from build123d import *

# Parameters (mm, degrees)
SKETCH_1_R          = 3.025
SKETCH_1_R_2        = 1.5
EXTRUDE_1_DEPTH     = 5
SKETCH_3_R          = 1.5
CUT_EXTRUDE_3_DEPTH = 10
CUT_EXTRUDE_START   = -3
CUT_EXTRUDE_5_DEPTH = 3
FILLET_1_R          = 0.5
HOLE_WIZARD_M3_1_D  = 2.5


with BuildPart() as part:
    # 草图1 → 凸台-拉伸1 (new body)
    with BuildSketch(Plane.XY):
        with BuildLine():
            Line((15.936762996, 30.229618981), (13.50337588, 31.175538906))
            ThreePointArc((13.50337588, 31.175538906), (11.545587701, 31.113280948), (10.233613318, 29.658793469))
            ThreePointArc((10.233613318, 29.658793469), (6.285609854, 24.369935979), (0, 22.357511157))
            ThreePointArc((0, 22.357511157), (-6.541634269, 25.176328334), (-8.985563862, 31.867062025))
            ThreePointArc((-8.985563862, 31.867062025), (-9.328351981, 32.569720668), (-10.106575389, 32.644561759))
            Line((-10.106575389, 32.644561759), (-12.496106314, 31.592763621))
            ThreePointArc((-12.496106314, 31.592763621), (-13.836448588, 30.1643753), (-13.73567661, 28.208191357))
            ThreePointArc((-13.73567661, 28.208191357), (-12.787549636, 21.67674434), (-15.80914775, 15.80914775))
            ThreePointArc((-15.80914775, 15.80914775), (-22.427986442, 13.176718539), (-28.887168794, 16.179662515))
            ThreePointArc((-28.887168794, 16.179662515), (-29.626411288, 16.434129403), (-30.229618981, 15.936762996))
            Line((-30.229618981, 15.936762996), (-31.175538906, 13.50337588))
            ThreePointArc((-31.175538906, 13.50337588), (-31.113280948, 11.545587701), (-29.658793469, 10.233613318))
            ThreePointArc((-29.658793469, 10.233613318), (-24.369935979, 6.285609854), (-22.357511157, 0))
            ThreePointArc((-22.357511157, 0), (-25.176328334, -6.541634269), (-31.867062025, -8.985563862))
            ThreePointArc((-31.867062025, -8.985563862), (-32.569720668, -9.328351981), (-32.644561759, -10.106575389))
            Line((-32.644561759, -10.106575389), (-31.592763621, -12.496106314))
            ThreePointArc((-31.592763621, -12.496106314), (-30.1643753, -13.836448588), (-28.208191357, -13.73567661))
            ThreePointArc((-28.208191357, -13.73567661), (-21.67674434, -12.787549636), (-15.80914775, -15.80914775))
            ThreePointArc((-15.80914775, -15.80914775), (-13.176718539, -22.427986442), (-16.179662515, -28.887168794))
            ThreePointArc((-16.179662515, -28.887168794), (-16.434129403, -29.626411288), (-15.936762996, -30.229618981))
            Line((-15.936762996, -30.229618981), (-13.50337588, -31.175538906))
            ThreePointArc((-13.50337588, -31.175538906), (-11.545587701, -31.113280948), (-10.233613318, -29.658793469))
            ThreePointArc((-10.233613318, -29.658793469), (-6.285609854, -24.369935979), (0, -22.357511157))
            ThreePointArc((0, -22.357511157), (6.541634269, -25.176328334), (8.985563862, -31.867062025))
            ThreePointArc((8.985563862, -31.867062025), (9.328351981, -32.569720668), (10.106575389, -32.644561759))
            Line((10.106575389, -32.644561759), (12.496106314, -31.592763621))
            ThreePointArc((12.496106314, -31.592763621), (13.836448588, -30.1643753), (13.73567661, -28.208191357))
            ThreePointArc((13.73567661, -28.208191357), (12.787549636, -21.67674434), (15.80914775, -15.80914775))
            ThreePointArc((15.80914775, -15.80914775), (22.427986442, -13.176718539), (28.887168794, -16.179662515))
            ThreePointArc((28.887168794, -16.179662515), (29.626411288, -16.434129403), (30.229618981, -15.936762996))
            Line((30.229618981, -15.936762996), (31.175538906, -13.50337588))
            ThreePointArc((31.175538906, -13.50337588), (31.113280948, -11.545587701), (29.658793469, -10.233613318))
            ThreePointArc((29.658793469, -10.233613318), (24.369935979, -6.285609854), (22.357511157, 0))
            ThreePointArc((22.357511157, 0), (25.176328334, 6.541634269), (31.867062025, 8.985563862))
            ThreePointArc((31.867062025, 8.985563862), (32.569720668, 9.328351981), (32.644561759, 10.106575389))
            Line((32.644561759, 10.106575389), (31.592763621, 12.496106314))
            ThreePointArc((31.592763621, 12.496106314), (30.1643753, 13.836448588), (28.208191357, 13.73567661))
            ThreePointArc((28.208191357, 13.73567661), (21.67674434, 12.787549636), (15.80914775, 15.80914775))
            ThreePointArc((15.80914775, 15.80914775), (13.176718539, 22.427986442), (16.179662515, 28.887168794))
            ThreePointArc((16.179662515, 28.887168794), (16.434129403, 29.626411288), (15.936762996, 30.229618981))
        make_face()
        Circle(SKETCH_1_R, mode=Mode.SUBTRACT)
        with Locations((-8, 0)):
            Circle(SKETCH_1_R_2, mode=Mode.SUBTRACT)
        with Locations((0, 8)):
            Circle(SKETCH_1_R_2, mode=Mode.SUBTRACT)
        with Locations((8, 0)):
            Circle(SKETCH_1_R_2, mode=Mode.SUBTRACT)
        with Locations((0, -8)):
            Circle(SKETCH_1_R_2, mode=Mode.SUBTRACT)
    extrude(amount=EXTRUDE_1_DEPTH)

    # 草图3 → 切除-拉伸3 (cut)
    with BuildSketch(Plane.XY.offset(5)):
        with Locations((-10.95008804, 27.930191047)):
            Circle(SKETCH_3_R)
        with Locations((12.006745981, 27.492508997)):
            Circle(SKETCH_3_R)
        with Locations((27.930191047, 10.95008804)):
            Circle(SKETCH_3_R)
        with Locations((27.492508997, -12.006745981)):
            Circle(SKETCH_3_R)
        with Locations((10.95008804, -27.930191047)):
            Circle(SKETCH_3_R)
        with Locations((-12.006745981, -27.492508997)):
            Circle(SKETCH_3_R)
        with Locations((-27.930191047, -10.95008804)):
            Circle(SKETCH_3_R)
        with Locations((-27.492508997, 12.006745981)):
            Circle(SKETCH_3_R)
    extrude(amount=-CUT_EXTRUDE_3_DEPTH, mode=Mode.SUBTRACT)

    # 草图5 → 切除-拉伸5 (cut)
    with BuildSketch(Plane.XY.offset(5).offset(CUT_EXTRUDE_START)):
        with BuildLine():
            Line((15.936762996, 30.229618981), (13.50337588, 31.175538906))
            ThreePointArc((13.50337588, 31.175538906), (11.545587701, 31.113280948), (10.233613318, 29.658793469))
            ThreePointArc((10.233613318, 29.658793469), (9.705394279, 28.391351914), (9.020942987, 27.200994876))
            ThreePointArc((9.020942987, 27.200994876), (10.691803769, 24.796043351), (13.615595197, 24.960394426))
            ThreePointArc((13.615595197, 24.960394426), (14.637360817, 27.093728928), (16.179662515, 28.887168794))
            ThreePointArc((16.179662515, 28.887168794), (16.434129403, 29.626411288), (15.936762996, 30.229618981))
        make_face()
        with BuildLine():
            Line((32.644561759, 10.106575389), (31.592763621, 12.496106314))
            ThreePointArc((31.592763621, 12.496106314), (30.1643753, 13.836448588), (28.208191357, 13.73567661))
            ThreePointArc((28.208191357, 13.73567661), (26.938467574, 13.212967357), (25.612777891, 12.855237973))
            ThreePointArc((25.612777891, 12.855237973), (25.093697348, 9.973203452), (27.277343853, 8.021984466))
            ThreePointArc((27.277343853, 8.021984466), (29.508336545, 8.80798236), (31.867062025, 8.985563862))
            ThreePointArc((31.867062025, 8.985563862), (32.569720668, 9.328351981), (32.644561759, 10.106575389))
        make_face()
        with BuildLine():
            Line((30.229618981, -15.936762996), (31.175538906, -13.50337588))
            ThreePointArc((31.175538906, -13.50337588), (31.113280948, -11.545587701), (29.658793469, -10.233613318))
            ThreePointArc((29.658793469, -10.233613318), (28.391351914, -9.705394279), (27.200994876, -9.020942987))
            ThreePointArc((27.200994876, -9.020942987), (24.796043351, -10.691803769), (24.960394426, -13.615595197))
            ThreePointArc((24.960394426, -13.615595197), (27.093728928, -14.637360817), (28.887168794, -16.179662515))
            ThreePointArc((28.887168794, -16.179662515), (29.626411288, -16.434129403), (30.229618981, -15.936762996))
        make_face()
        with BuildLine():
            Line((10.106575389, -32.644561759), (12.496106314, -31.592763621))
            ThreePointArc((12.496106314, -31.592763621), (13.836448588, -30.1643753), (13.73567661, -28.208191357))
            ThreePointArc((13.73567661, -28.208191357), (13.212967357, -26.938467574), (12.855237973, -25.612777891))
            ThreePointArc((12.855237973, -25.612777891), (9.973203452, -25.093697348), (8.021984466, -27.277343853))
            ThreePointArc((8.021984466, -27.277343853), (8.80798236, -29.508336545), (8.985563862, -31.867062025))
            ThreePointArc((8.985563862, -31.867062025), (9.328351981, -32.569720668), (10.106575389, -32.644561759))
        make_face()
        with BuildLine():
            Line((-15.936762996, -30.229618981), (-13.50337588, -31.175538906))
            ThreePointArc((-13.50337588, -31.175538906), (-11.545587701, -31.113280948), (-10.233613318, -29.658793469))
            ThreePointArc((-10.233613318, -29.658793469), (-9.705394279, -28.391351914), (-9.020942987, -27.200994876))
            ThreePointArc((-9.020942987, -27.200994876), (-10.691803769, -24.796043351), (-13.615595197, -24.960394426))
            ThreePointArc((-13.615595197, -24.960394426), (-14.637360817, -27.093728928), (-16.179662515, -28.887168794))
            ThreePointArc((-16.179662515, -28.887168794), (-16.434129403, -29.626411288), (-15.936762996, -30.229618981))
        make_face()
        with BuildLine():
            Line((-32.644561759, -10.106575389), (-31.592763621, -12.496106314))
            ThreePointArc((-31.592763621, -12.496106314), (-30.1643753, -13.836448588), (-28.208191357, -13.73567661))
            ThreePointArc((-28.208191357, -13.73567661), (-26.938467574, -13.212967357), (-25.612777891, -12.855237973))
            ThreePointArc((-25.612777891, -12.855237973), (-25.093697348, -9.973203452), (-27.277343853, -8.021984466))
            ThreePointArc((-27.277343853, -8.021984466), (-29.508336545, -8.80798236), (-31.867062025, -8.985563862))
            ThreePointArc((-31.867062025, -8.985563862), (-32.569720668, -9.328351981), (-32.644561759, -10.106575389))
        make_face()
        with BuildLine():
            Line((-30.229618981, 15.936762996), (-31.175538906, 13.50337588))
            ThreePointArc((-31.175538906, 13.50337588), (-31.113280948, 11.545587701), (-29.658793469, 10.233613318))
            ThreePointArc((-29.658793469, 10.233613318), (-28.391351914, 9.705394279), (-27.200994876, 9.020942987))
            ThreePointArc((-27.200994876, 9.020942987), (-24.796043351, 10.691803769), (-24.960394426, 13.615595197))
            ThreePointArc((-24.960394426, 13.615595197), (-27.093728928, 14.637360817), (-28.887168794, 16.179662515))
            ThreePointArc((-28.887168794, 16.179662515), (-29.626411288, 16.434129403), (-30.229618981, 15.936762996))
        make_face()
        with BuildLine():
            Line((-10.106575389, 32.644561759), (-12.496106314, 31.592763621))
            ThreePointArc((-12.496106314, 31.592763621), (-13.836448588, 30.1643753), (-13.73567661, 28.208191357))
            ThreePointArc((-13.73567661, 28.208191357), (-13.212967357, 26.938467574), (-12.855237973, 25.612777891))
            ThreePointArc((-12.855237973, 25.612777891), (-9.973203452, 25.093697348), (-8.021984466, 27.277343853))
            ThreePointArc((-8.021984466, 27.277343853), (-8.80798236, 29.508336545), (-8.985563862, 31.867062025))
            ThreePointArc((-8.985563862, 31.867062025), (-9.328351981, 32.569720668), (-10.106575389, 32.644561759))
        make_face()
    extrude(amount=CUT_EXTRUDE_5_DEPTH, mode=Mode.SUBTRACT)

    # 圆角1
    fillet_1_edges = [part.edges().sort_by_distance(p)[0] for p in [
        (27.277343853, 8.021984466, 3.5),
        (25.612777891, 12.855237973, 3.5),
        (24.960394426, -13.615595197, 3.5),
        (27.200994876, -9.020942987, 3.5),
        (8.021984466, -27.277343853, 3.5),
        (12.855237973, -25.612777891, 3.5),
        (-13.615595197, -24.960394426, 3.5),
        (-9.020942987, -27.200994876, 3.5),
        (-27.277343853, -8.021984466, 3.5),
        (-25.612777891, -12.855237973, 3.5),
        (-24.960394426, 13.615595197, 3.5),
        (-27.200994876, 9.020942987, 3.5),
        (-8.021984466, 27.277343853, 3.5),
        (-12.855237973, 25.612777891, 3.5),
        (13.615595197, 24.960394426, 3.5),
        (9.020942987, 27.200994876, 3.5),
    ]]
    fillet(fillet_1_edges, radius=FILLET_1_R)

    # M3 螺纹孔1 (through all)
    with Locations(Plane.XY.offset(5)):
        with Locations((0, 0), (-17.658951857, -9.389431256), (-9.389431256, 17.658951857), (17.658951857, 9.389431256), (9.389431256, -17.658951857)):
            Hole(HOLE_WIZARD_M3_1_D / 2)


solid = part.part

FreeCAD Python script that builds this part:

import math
import FreeCAD as App
import Part
import Sketcher

V = App.Vector


def edges_at(feature, points):
    """Names of the edges that pass closest to the given points."""
    edges = feature.Shape.Edges
    near = lambda p: min(range(len(edges)), key=lambda i: edges[i].distToShape(Part.Vertex(*p))[0])
    return sorted({f"Edge{near(p) + 1}" for p in points})

doc = App.newDocument("Part")
body = doc.addObject("PartDesign::Body", "Body")

# Sketch on XY plane
sketch1 = doc.addObject("Sketcher::SketchObject", "Sketch")
body.addObject(sketch1)
sketch1.AttachmentSupport = (doc.XY_Plane, [""])
sketch1.MapMode = "FlatFace"
sketch1.addGeometry(Part.LineSegment(V(15.936763, 30.229619, 0), V(13.503376, 31.175539, 0)), False)
sketch1.addGeometry(Part.ArcOfCircle(Part.Circle(V(12.597591, 28.845399, 0), V(0, 0, 1), 2.5), math.radians(68.757621), math.radians(161.012741)), False)
sketch1.addGeometry(Part.ArcOfCircle(Part.Circle(V(0, 33.179964, 0), V(0, 0, 1), 10.822453), math.radians(-90), math.radians(-18.987259)), False)
sketch1.addGeometry(Part.ArcOfCircle(Part.Circle(V(0, 31.357511, 0), V(0, 0, 1), 9), math.radians(176.754363), math.radians(270)), False)
sketch1.addGeometry(Part.ArcOfCircle(Part.Circle(V(-9.784281, 31.912355, 0), V(0, 0, 1), 0.8), math.radians(-3.245637), math.radians(113.757621)), False)
sketch1.addGeometry(Part.LineSegment(V(-10.106575, 32.644562, 0), V(-12.496106, 31.592764, 0)), False)
sketch1.addGeometry(Part.ArcOfCircle(Part.Circle(V(-11.488935, 29.304619, 0), V(0, 0, 1), 2.5), math.radians(113.75762), math.radians(206.012741)), False)
sketch1.addGeometry(Part.ArcOfCircle(Part.Circle(V(-23.461777, 23.461777, 0), V(0, 0, 1), 10.822453), math.radians(-45), math.radians(26.012741)), False)
sketch1.addGeometry(Part.ArcOfCircle(Part.Circle(V(-22.173109, 22.173109, 0), V(0, 0, 1), 9), math.radians(-138.245637), math.radians(-45)), False)
sketch1.addGeometry(Part.ArcOfCircle(Part.Circle(V(-29.483974, 15.646912, 0), V(0, 0, 1), 0.8), math.radians(41.754363), math.radians(158.757621)), False)
sketch1.addGeometry(Part.LineSegment(V(-30.229619, 15.936763, 0), V(-31.175539, 13.503376, 0)), False)
sketch1.addGeometry(Part.ArcOfCircle(Part.Circle(V(-28.845399, 12.597591, 0), V(0, 0, 1), 2.5), math.radians(158.757621), math.radians(251.012741)), False)
sketch1.addGeometry(Part.ArcOfCircle(Part.Circle(V(-33.179964, 0, 0), V(0, 0, 1), 10.822453), math.radians(0), math.radians(71.012741)), False)
sketch1.addGeometry(Part.ArcOfCircle(Part.Circle(V(-31.357511, 0, 0), V(0, 0, 1), 9), math.radians(-93.245637), math.radians(0)), False)
sketch1.addGeometry(Part.ArcOfCircle(Part.Circle(V(-31.912355, -9.784281, 0), V(0, 0, 1), 0.8), math.radians(86.754363), math.radians(203.757621)), False)
sketch1.addGeometry(Part.LineSegment(V(-32.644562, -10.106575, 0), V(-31.592764, -12.496106, 0)), False)
sketch1.addGeometry(Part.ArcOfCircle(Part.Circle(V(-29.304619, -11.488935, 0), V(0, 0, 1), 2.5), math.radians(-156.24238), math.radians(-63.987259)), False)
sketch1.addGeometry(Part.ArcOfCircle(Part.Circle(V(-23.461777, -23.461777, 0), V(0, 0, 1), 10.822453), math.radians(45), math.radians(116.012741)), False)
sketch1.addGeometry(Part.ArcOfCircle(Part.Circle(V(-22.173109, -22.173109, 0), V(0, 0, 1), 9), math.radians(-48.245637), math.radians(45)), False)
sketch1.addGeometry(Part.ArcOfCircle(Part.Circle(V(-15.646912, -29.483974, 0), V(0, 0, 1), 0.8), math.radians(131.754363), math.radians(248.757621)), False)
sketch1.addGeometry(Part.LineSegment(V(-15.936763, -30.229619, 0), V(-13.503376, -31.175539, 0)), False)
sketch1.addGeometry(Part.ArcOfCircle(Part.Circle(V(-12.597591, -28.845399, 0), V(0, 0, 1), 2.5), math.radians(-111.242379), math.radians(-18.987259)), False)
sketch1.addGeometry(Part.ArcOfCircle(Part.Circle(V(0, -33.179964, 0), V(0, 0, 1), 10.822453), math.radians(90), math.radians(161.012741)), False)
sketch1.addGeometry(Part.ArcOfCircle(Part.Circle(V(0, -31.357511, 0), V(0, 0, 1), 9), math.radians(-3.245637), math.radians(90)), False)
sketch1.addGeometry(Part.ArcOfCircle(Part.Circle(V(9.784281, -31.912355, 0), V(0, 0, 1), 0.8), math.radians(176.754363), math.radians(293.757621)), False)
sketch1.addGeometry(Part.LineSegment(V(10.106575, -32.644562, 0), V(12.496106, -31.592764, 0)), False)
sketch1.addGeometry(Part.ArcOfCircle(Part.Circle(V(11.488935, -29.304619, 0), V(0, 0, 1), 2.5), math.radians(-66.24238), math.radians(26.012741)), False)
sketch1.addGeometry(Part.ArcOfCircle(Part.Circle(V(23.461777, -23.461777, 0), V(0, 0, 1), 10.822453), math.radians(135), math.radians(206.012741)), False)
sketch1.addGeometry(Part.ArcOfCircle(Part.Circle(V(22.173109, -22.173109, 0), V(0, 0, 1), 9), math.radians(41.754363), math.radians(135)), False)
sketch1.addGeometry(Part.ArcOfCircle(Part.Circle(V(29.483974, -15.646912, 0), V(0, 0, 1), 0.8), math.radians(-138.245637), math.radians(-21.242379)), False)
sketch1.addGeometry(Part.LineSegment(V(30.229619, -15.936763, 0), V(31.175539, -13.503376, 0)), False)
sketch1.addGeometry(Part.ArcOfCircle(Part.Circle(V(28.845399, -12.597591, 0), V(0, 0, 1), 2.5), math.radians(-21.242379), math.radians(71.012741)), False)
sketch1.addGeometry(Part.ArcOfCircle(Part.Circle(V(33.179964, 0, 0), V(0, 0, 1), 10.822453), math.radians(180), math.radians(251.012741)), False)
sketch1.addGeometry(Part.ArcOfCircle(Part.Circle(V(31.357511, 0, 0), V(0, 0, 1), 9), math.radians(86.754363), math.radians(180)), False)
sketch1.addGeometry(Part.ArcOfCircle(Part.Circle(V(31.912355, 9.784281, 0), V(0, 0, 1), 0.8), math.radians(-93.245637), math.radians(23.757621)), False)
sketch1.addGeometry(Part.LineSegment(V(32.644562, 10.106575, 0), V(31.592764, 12.496106, 0)), False)
sketch1.addGeometry(Part.ArcOfCircle(Part.Circle(V(29.304619, 11.488935, 0), V(0, 0, 1), 2.5), math.radians(23.75762), math.radians(116.012741)), False)
sketch1.addGeometry(Part.ArcOfCircle(Part.Circle(V(23.461777, 23.461777, 0), V(0, 0, 1), 10.822453), math.radians(-135), math.radians(-63.987259)), False)
sketch1.addGeometry(Part.ArcOfCircle(Part.Circle(V(22.173109, 22.173109, 0), V(0, 0, 1), 9), math.radians(131.754363), math.radians(225)), False)
sketch1.addGeometry(Part.ArcOfCircle(Part.Circle(V(15.646912, 29.483974, 0), V(0, 0, 1), 0.8), math.radians(-48.245637), math.radians(68.757621)), False)
sketch1.addGeometry(Part.Circle(V(0, -8, 0), V(0, 0, 1), 1.5), False)
sketch1.addGeometry(Part.Circle(V(-8, 0, 0), V(0, 0, 1), 1.5), False)
sketch1.addGeometry(Part.Circle(V(0, 0, 0), V(0, 0, 1), 3.025), False)
sketch1.addGeometry(Part.Circle(V(8, 0, 0), V(0, 0, 1), 1.5), False)
sketch1.addGeometry(Part.Circle(V(0, 8, 0), V(0, 0, 1), 1.5), False)
sketch1.addConstraint(Sketcher.Constraint("Coincident", 0, 2, 1, 1))
sketch1.addConstraint(Sketcher.Constraint("Coincident", 1, 2, 2, 2))
sketch1.addConstraint(Sketcher.Constraint("Coincident", 2, 1, 3, 2))
sketch1.addConstraint(Sketcher.Constraint("Coincident", 3, 1, 4, 1))
sketch1.addConstraint(Sketcher.Constraint("Coincident", 4, 2, 5, 1))
sketch1.addConstraint(Sketcher.Constraint("Coincident", 5, 2, 6, 1))
sketch1.addConstraint(Sketcher.Constraint("Coincident", 6, 2, 7, 2))
sketch1.addConstraint(Sketcher.Constraint("Coincident", 7, 1, 8, 2))
sketch1.addConstraint(Sketcher.Constraint("Coincident", 8, 1, 9, 1))
sketch1.addConstraint(Sketcher.Constraint("Coincident", 9, 2, 10, 1))
sketch1.addConstraint(Sketcher.Constraint("Coincident", 10, 2, 11, 1))
sketch1.addConstraint(Sketcher.Constraint("Coincident", 11, 2, 12, 2))
sketch1.addConstraint(Sketcher.Constraint("Coincident", 12, 1, 13, 2))
sketch1.addConstraint(Sketcher.Constraint("Coincident", 13, 1, 14, 1))
sketch1.addConstraint(Sketcher.Constraint("Coincident", 14, 2, 15, 1))
sketch1.addConstraint(Sketcher.Constraint("Coincident", 15, 2, 16, 1))
sketch1.addConstraint(Sketcher.Constraint("Coincident", 16, 2, 17, 2))
sketch1.addConstraint(Sketcher.Constraint("Coincident", 17, 1, 18, 2))
sketch1.addConstraint(Sketcher.Constraint("Coincident", 18, 1, 19, 1))
sketch1.addConstraint(Sketcher.Constraint("Coincident", 19, 2, 20, 1))
sketch1.addConstraint(Sketcher.Constraint("Coincident", 20, 2, 21, 1))
sketch1.addConstraint(Sketcher.Constraint("Coincident", 21, 2, 22, 2))
sketch1.addConstraint(Sketcher.Constraint("Coincident", 22, 1, 23, 2))
sketch1.addConstraint(Sketcher.Constraint("Coincident", 23, 1, 24, 1))
sketch1.addConstraint(Sketcher.Constraint("Coincident", 24, 2, 25, 1))
sketch1.addConstraint(Sketcher.Constraint("Coincident", 25, 2, 26, 1))
sketch1.addConstraint(Sketcher.Constraint("Coincident", 26, 2, 27, 2))
sketch1.addConstraint(Sketcher.Constraint("Coincident", 27, 1, 28, 2))
sketch1.addConstraint(Sketcher.Constraint("Coincident", 28, 1, 29, 1))
sketch1.addConstraint(Sketcher.Constraint("Coincident", 29, 2, 30, 1))
sketch1.addConstraint(Sketcher.Constraint("Coincident", 30, 2, 31, 1))
sketch1.addConstraint(Sketcher.Constraint("Coincident", 31, 2, 32, 2))
sketch1.addConstraint(Sketcher.Constraint("Coincident", 32, 1, 33, 2))
sketch1.addConstraint(Sketcher.Constraint("Coincident", 33, 1, 34, 1))
sketch1.addConstraint(Sketcher.Constraint("Coincident", 34, 2, 35, 1))
sketch1.addConstraint(Sketcher.Constraint("Coincident", 35, 2, 36, 1))
sketch1.addConstraint(Sketcher.Constraint("Coincident", 36, 2, 37, 2))
sketch1.addConstraint(Sketcher.Constraint("Coincident", 37, 1, 38, 2))
sketch1.addConstraint(Sketcher.Constraint("Coincident", 38, 1, 39, 1))
sketch1.addConstraint(Sketcher.Constraint("Coincident", 39, 2, 0, 1))
sketch1.addConstraint(Sketcher.Constraint("Coincident", 42, 3, -1, 1))
sketch1.addConstraint(Sketcher.Constraint("PointOnObject", 2, 3, -2))
sketch1.addConstraint(Sketcher.Constraint("PointOnObject", 3, 3, -2))
sketch1.addConstraint(Sketcher.Constraint("PointOnObject", 12, 3, -1))
sketch1.addConstraint(Sketcher.Constraint("PointOnObject", 13, 3, -1))
sketch1.addConstraint(Sketcher.Constraint("PointOnObject", 22, 3, -2))
sketch1.addConstraint(Sketcher.Constraint("PointOnObject", 23, 3, -2))
sketch1.addConstraint(Sketcher.Constraint("PointOnObject", 32, 3, -1))
sketch1.addConstraint(Sketcher.Constraint("PointOnObject", 33, 3, -1))
sketch1.addConstraint(Sketcher.Constraint("PointOnObject", 40, 3, -2))
sketch1.addConstraint(Sketcher.Constraint("PointOnObject", 41, 3, -1))
sketch1.addConstraint(Sketcher.Constraint("PointOnObject", 43, 3, -1))
sketch1.addConstraint(Sketcher.Constraint("PointOnObject", 44, 3, -2))
sketch1.addConstraint(Sketcher.Constraint("PointOnObject", 2, 1, -2))
sketch1.addConstraint(Sketcher.Constraint("PointOnObject", 12, 1, -1))
sketch1.addConstraint(Sketcher.Constraint("PointOnObject", 22, 1, -2))
sketch1.addConstraint(Sketcher.Constraint("PointOnObject", 32, 1, -1))
sketch1.addConstraint(Sketcher.Constraint("Diameter", 40, 3.0))
sketch1.addConstraint(Sketcher.Constraint("Diameter", 41, 3.0))
sketch1.addConstraint(Sketcher.Constraint("Diameter", 43, 3.0))
sketch1.addConstraint(Sketcher.Constraint("Diameter", 44, 3.0))
sketch1.addConstraint(Sketcher.Constraint("Radius", 3, 9.0))
sketch1.addConstraint(Sketcher.Constraint("Radius", 8, 9.0))
sketch1.addConstraint(Sketcher.Constraint("Radius", 13, 9.0))
sketch1.addConstraint(Sketcher.Constraint("Radius", 18, 9.0))
sketch1.addConstraint(Sketcher.Constraint("Radius", 23, 9.0))
sketch1.addConstraint(Sketcher.Constraint("Radius", 28, 9.0))
sketch1.addConstraint(Sketcher.Constraint("Radius", 33, 9.0))
sketch1.addConstraint(Sketcher.Constraint("Radius", 38, 9.0))
sketch1.addConstraint(Sketcher.Constraint("Radius", 1, 2.5))
sketch1.addConstraint(Sketcher.Constraint("Radius", 4, 0.8))
sketch1.addConstraint(Sketcher.Constraint("Radius", 6, 2.5))
sketch1.addConstraint(Sketcher.Constraint("Radius", 9, 0.8))
sketch1.addConstraint(Sketcher.Constraint("Radius", 11, 2.5))
sketch1.addConstraint(Sketcher.Constraint("Radius", 14, 0.8))
sketch1.addConstraint(Sketcher.Constraint("Radius", 16, 2.5))
sketch1.addConstraint(Sketcher.Constraint("Radius", 19, 0.8))
sketch1.addConstraint(Sketcher.Constraint("Radius", 21, 2.5))
sketch1.addConstraint(Sketcher.Constraint("Radius", 24, 0.8))
sketch1.addConstraint(Sketcher.Constraint("Radius", 26, 2.5))
sketch1.addConstraint(Sketcher.Constraint("Radius", 29, 0.8))
sketch1.addConstraint(Sketcher.Constraint("Radius", 31, 2.5))
sketch1.addConstraint(Sketcher.Constraint("Radius", 34, 0.8))
sketch1.addConstraint(Sketcher.Constraint("Radius", 36, 2.5))
sketch1.addConstraint(Sketcher.Constraint("Radius", 39, 0.8))
sketch1.addConstraint(Sketcher.Constraint("Diameter", 42, 6.05))
sketch1.addConstraint(Sketcher.Constraint("DistanceY", 40, 3, -1, 1, 8.0))
sketch1.addConstraint(Sketcher.Constraint("DistanceX", 41, 3, -1, 1, 8.0))
sketch1.addConstraint(Sketcher.Constraint("DistanceX", -1, 1, 43, 3, 8.0))
sketch1.addConstraint(Sketcher.Constraint("DistanceY", -1, 1, 44, 3, 8.0))
sketch1.addConstraint(Sketcher.Constraint("Radius", 2, 10.822453))
sketch1.addConstraint(Sketcher.Constraint("Radius", 7, 10.822453))
sketch1.addConstraint(Sketcher.Constraint("Radius", 12, 10.822453))
sketch1.addConstraint(Sketcher.Constraint("Radius", 17, 10.822453))
sketch1.addConstraint(Sketcher.Constraint("Radius", 22, 10.822453))
sketch1.addConstraint(Sketcher.Constraint("Radius", 27, 10.822453))
sketch1.addConstraint(Sketcher.Constraint("Radius", 32, 10.822453))
sketch1.addConstraint(Sketcher.Constraint("Radius", 37, 10.822453))
sketch1.addConstraint(Sketcher.Constraint("DistanceY", -1, 1, 1, 3, 28.845399))
sketch1.addConstraint(Sketcher.Constraint("DistanceX", 11, 3, -1, 1, 28.845399))
sketch1.addConstraint(Sketcher.Constraint("DistanceY", 21, 3, -1, 1, 28.845399))
sketch1.addConstraint(Sketcher.Constraint("DistanceX", -1, 1, 31, 3, 28.845399))
sketch1.addConstraint(Sketcher.Constraint("DistanceX", -1, 1, 1, 3, 12.597591))
sketch1.addConstraint(Sketcher.Constraint("DistanceX", 4, 3, -1, 1, 9.784281))
sketch1.addConstraint(Sketcher.Constraint("DistanceY", -1, 1, 6, 3, 29.304619))
sketch1.addConstraint(Sketcher.Constraint("DistanceX", 8, 3, -1, 1, 22.173109))
sketch1.addConstraint(Sketcher.Constraint("DistanceY", -1, 1, 8, 3, 22.173109))
sketch1.addConstraint(Sketcher.Constraint("DistanceY", -1, 1, 9, 3, 15.646912))
sketch1.addConstraint(Sketcher.Constraint("DistanceY", -1, 1, 11, 3, 12.597591))
sketch1.addConstraint(Sketcher.Constraint("DistanceY", 14, 3, -1, 1, 9.784281))
sketch1.addConstraint(Sketcher.Constraint("DistanceX", 16, 3, -1, 1, 29.304619))
sketch1.addConstraint(Sketcher.Constraint("DistanceX", 18, 3, -1, 1, 22.173109))
sketch1.addConstraint(Sketcher.Constraint("DistanceY", 18, 3, -1, 1, 22.173109))
sketch1.addConstraint(Sketcher.Constraint("DistanceX", 19, 3, -1, 1, 15.646912))
sketch1.addConstraint(Sketcher.Constraint("DistanceX", 21, 3, -1, 1, 12.597591))
sketch1.addConstraint(Sketcher.Constraint("DistanceX", -1, 1, 24, 3, 9.784281))
sketch1.addConstraint(Sketcher.Constraint("DistanceY", 26, 3, -1, 1, 29.304619))
sketch1.addConstraint(Sketcher.Constraint("DistanceX", -1, 1, 28, 3, 22.173109))
sketch1.addConstraint(Sketcher.Constraint("DistanceY", 28, 3, -1, 1, 22.173109))
sketch1.addConstraint(Sketcher.Constraint("DistanceY", 29, 3, -1, 1, 15.646912))
sketch1.addConstraint(Sketcher.Constraint("DistanceY", 31, 3, -1, 1, 12.597591))
sketch1.addConstraint(Sketcher.Constraint("DistanceY", -1, 1, 34, 3, 9.784281))
sketch1.addConstraint(Sketcher.Constraint("DistanceX", -1, 1, 36, 3, 29.304619))
sketch1.addConstraint(Sketcher.Constraint("DistanceX", -1, 1, 38, 3, 22.173109))
sketch1.addConstraint(Sketcher.Constraint("DistanceY", -1, 1, 38, 3, 22.173109))
sketch1.addConstraint(Sketcher.Constraint("DistanceX", -1, 1, 39, 3, 15.646912))
sketch1.addConstraint(Sketcher.Constraint("DistanceY", -1, 1, 0, 2, 31.175539))
sketch1.addConstraint(Sketcher.Constraint("DistanceY", -1, 1, 4, 2, 32.644562))
sketch1.addConstraint(Sketcher.Constraint("DistanceY", -1, 1, 6, 2, 28.208191))
sketch1.addConstraint(Sketcher.Constraint("DistanceX", 8, 1, -1, 1, 28.887169))
sketch1.addConstraint(Sketcher.Constraint("DistanceX", 9, 2, -1, 1, 30.229619))
sketch1.addConstraint(Sketcher.Constraint("DistanceX", 10, 2, -1, 1, 31.175539))
sketch1.addConstraint(Sketcher.Constraint("DistanceX", 14, 2, -1, 1, 32.644562))
sketch1.addConstraint(Sketcher.Constraint("DistanceX", 16, 2, -1, 1, 28.208191))
sketch1.addConstraint(Sketcher.Constraint("DistanceY", 18, 1, -1, 1, 28.887169))
sketch1.addConstraint(Sketcher.Constraint("DistanceY", 19, 2, -1, 1, 30.229619))
sketch1.addConstraint(Sketcher.Constraint("DistanceY", 20, 2, -1, 1, 31.175539))
sketch1.addConstraint(Sketcher.Constraint("DistanceY", 24, 2, -1, 1, 32.644562))
sketch1.addConstraint(Sketcher.Constraint("DistanceY", 26, 2, -1, 1, 28.208191))
sketch1.addConstraint(Sketcher.Constraint("DistanceX", -1, 1, 28, 1, 28.887169))
sketch1.addConstraint(Sketcher.Constraint("DistanceX", -1, 1, 29, 2, 30.229619))
sketch1.addConstraint(Sketcher.Constraint("DistanceX", -1, 1, 30, 2, 31.175539))
sketch1.addConstraint(Sketcher.Constraint("DistanceX", -1, 1, 34, 2, 32.644562))
sketch1.addConstraint(Sketcher.Constraint("DistanceX", -1, 1, 36, 2, 28.208191))
sketch1.addConstraint(Sketcher.Constraint("DistanceY", -1, 1, 38, 1, 28.887169))
sketch1.addConstraint(Sketcher.Constraint("DistanceY", -1, 1, 39, 2, 30.229619))
sketch1.addConstraint(Sketcher.Constraint("Distance", 5, 2.610773))
sketch1.addConstraint(Sketcher.Constraint("Distance", 15, 2.610773))
sketch1.addConstraint(Sketcher.Constraint("Distance", 25, 2.610773))
sketch1.addConstraint(Sketcher.Constraint("Distance", 35, 2.610773))
sketch1.addConstraint(Sketcher.Constraint("DistanceX", 6, 3, -1, 1, 11.488935))
sketch1.addConstraint(Sketcher.Constraint("DistanceY", 16, 3, -1, 1, 11.488935))
sketch1.addConstraint(Sketcher.Constraint("DistanceX", -1, 1, 26, 3, 11.488935))
sketch1.addConstraint(Sketcher.Constraint("DistanceY", -1, 1, 36, 3, 11.488935))
sketch1.addConstraint(Sketcher.Constraint("DistanceX", -1, 1, 1, 2, 10.233613))
sketch1.addConstraint(Sketcher.Constraint("DistanceX", 3, 1, -1, 1, 8.985564))
sketch1.addConstraint(Sketcher.Constraint("DistanceX", 7, 1, -1, 1, 15.809148))
sketch1.addConstraint(Sketcher.Constraint("DistanceX", 11, 2, -1, 1, 29.658793))
sketch1.addConstraint(Sketcher.Constraint("DistanceX", 13, 1, -1, 1, 31.867062))
sketch1.addConstraint(Sketcher.Constraint("DistanceX", 17, 1, -1, 1, 15.809148))
sketch1.addConstraint(Sketcher.Constraint("DistanceX", 21, 2, -1, 1, 10.233613))
sketch1.addConstraint(Sketcher.Constraint("DistanceX", -1, 1, 23, 1, 8.985564))
sketch1.addConstraint(Sketcher.Constraint("DistanceX", -1, 1, 27, 1, 15.809148))
sketch1.addConstraint(Sketcher.Constraint("DistanceX", -1, 1, 31, 2, 29.658793))
sketch1.addConstraint(Sketcher.Constraint("DistanceX", -1, 1, 33, 1, 31.867062))
sketch1.addConstraint(Sketcher.Constraint("DistanceX", -1, 1, 37, 1, 15.809148))
pad1 = doc.addObject("PartDesign::Pad", "Pad")
body.addObject(pad1)
pad1.Profile = sketch1
pad1.Length = 5

# Sketch on XY plane
sketch2 = doc.addObject("Sketcher::SketchObject", "Sketch001")
body.addObject(sketch2)
sketch2.AttachmentSupport = (doc.XY_Plane, [""])
sketch2.MapMode = "FlatFace"
sketch2.AttachmentOffset = App.Placement(V(0, 0, 5), App.Rotation())
sketch2.addGeometry(Part.Circle(V(-11, 27.9, 0), V(0, 0, 1), 1.5), False)
sketch2.addGeometry(Part.Circle(V(12, 27.5, 0), V(0, 0, 1), 1.5), False)
sketch2.addGeometry(Part.Circle(V(27.9, 11, 0), V(0, 0, 1), 1.5), False)
sketch2.addGeometry(Part.Circle(V(27.5, -12, 0), V(0, 0, 1), 1.5), False)
sketch2.addGeometry(Part.Circle(V(11, -27.9, 0), V(0, 0, 1), 1.5), False)
sketch2.addGeometry(Part.Circle(V(-12, -27.5, 0), V(0, 0, 1), 1.5), False)
sketch2.addGeometry(Part.Circle(V(-27.9, -11, 0), V(0, 0, 1), 1.5), False)
sketch2.addGeometry(Part.Circle(V(-27.5, 12, 0), V(0, 0, 1), 1.5), False)
sketch2.addConstraint(Sketcher.Constraint("Equal", 0, 1))
sketch2.addConstraint(Sketcher.Constraint("Equal", 1, 2))
sketch2.addConstraint(Sketcher.Constraint("Equal", 2, 3))
sketch2.addConstraint(Sketcher.Constraint("Equal", 3, 4))
sketch2.addConstraint(Sketcher.Constraint("Equal", 4, 5))
sketch2.addConstraint(Sketcher.Constraint("Equal", 5, 6))
sketch2.addConstraint(Sketcher.Constraint("Equal", 6, 7))
sketch2.addConstraint(Sketcher.Constraint("Symmetric", 0, 3, 4, 3, -1, 1))
sketch2.addConstraint(Sketcher.Constraint("Symmetric", 1, 3, 5, 3, -1, 1))
sketch2.addConstraint(Sketcher.Constraint("Symmetric", 2, 3, 6, 3, -1, 1))
sketch2.addConstraint(Sketcher.Constraint("Symmetric", 3, 3, 7, 3, -1, 1))
sketch2.addConstraint(Sketcher.Constraint("Diameter", 0, 3.0))
sketch2.addConstraint(Sketcher.Constraint("DistanceY", 4, 3, 1, 3, 55.4227))
sketch2.addConstraint(Sketcher.Constraint("DistanceX", 6, 3, 3, 3, 55.4227))
sketch2.addConstraint(Sketcher.Constraint("DistanceX", 0, 3, -1, 1, 10.950088))
sketch2.addConstraint(Sketcher.Constraint("DistanceY", -1, 1, 0, 3, 27.930191))
sketch2.addConstraint(Sketcher.Constraint("DistanceX", -1, 1, 2, 3, 27.930191))
sketch2.addConstraint(Sketcher.Constraint("DistanceY", -1, 1, 2, 3, 10.950088))
sketch2.addConstraint(Sketcher.Constraint("DistanceX", 5, 3, 1, 3, 24.013492))
sketch2.addConstraint(Sketcher.Constraint("DistanceY", 3, 3, -1, 1, 12.006746))
pocket1 = doc.addObject("PartDesign::Pocket", "Pocket")
body.addObject(pocket1)
pocket1.Profile = sketch2
pocket1.Length = 10

# Sketch on XY plane
sketch3 = doc.addObject("Sketcher::SketchObject", "Sketch002")
body.addObject(sketch3)
sketch3.AttachmentSupport = (doc.XY_Plane, [""])
sketch3.MapMode = "FlatFace"
sketch3.AttachmentOffset = App.Placement(V(0, 0, 2), App.Rotation())
sketch3.addGeometry(Part.LineSegment(V(15.936763, 30.229619, 0), V(13.503376, 31.175539, 0)), False)
sketch3.addGeometry(Part.ArcOfCircle(Part.Circle(V(12.597591, 28.845399, 0), V(0, 0, 1), 2.5), math.radians(68.757621), math.radians(161.012741)), False)
sketch3.addGeometry(Part.ArcOfCircle(Part.Circle(V(0, 33.179964, 0), V(0, 0, 1), 10.822453), math.radians(-33.535923), math.radians(-18.987259)), False)
sketch3.addGeometry(Part.ArcOfCircle(Part.Circle(V(12.006746, 27.492509, 0), V(0, 0, 1), 3), math.radians(-174.423691), math.radians(-57.569032)), False)
sketch3.addGeometry(Part.ArcOfCircle(Part.Circle(V(22.173109, 22.173109, 0), V(0, 0, 1), 9), math.radians(131.754363), math.radians(161.958944)), False)
sketch3.addGeometry(Part.ArcOfCircle(Part.Circle(V(15.646912, 29.483974, 0), V(0, 0, 1), 0.8), math.radians(-48.245637), math.radians(68.757621)), False)
sketch3.addGeometry(Part.LineSegment(V(32.644562, 10.106575, 0), V(31.592764, 12.496106, 0)), False)
sketch3.addGeometry(Part.ArcOfCircle(Part.Circle(V(29.304619, 11.488935, 0), V(0, 0, 1), 2.5), math.radians(23.75762), math.radians(116.012741)), False)
sketch3.addGeometry(Part.ArcOfCircle(Part.Circle(V(23.461777, 23.461778, 0), V(0, 0, 1), 10.822453), math.radians(-78.535923), math.radians(-63.987259)), False)
sketch3.addGeometry(Part.ArcOfCircle(Part.Circle(V(27.930191, 10.950088, 0), V(0, 0, 1), 3), math.radians(140.576309), math.radians(257.430968)), False)
sketch3.addGeometry(Part.ArcOfCircle(Part.Circle(V(31.357511, 0, 0), V(0, 0, 1), 9), math.radians(86.754363), math.radians(116.958944)), False)
sketch3.addGeometry(Part.ArcOfCircle(Part.Circle(V(31.912355, 9.784281, 0), V(0, 0, 1), 0.8), math.radians(-93.245637), math.radians(23.757621)), False)
sketch3.addGeometry(Part.LineSegment(V(30.229619, -15.936763, 0), V(31.175539, -13.503376, 0)), False)
sketch3.addGeometry(Part.ArcOfCircle(Part.Circle(V(28.845399, -12.597591, 0), V(0, 0, 1), 2.5), math.radians(-21.242379), math.radians(71.012741)), False)
sketch3.addGeometry(Part.ArcOfCircle(Part.Circle(V(33.179964, 0, 0), V(0, 0, 1), 10.822453), math.radians(-123.535923), math.radians(-108.987259)), False)
sketch3.addGeometry(Part.ArcOfCircle(Part.Circle(V(27.492509, -12.006746, 0), V(0, 0, 1), 3), math.radians(95.576309), math.radians(212.430968)), False)
sketch3.addGeometry(Part.ArcOfCircle(Part.Circle(V(22.173109, -22.173109, 0), V(0, 0, 1), 9), math.radians(41.754363), math.radians(71.958944)), False)
sketch3.addGeometry(Part.ArcOfCircle(Part.Circle(V(29.483974, -15.646912, 0), V(0, 0, 1), 0.8), math.radians(-138.245637), math.radians(-21.242379)), False)
sketch3.addGeometry(Part.LineSegment(V(10.106575, -32.644562, 0), V(12.496106, -31.592764, 0)), False)
sketch3.addGeometry(Part.ArcOfCircle(Part.Circle(V(11.488935, -29.304619, 0), V(0, 0, 1), 2.5), math.radians(-66.24238), math.radians(26.012741)), False)
sketch3.addGeometry(Part.ArcOfCircle(Part.Circle(V(23.461778, -23.461777, 0), V(0, 0, 1), 10.822453), math.radians(-168.535923), math.radians(-153.987259)), False)
sketch3.addGeometry(Part.ArcOfCircle(Part.Circle(V(10.950088, -27.930191, 0), V(0, 0, 1), 3), math.radians(50.576309), math.radians(167.430968)), False)
sketch3.addGeometry(Part.ArcOfCircle(Part.Circle(V(0, -31.357511, 0), V(0, 0, 1), 9), math.radians(-3.245637), math.radians(26.958944)), False)
sketch3.addGeometry(Part.ArcOfCircle(Part.Circle(V(9.784281, -31.912355, 0), V(0, 0, 1), 0.8), math.radians(176.754363), math.radians(293.757621)), False)
sketch3.addGeometry(Part.LineSegment(V(-15.936763, -30.229619, 0), V(-13.503376, -31.175539, 0)), False)
sketch3.addGeometry(Part.ArcOfCircle(Part.Circle(V(-12.597591, -28.845399, 0), V(0, 0, 1), 2.5), math.radians(-111.242379), math.radians(-18.987259)), False)
sketch3.addGeometry(Part.ArcOfCircle(Part.Circle(V(0, -33.179964, 0), V(0, 0, 1), 10.822453), math.radians(146.464077), math.radians(161.012741)), False)
sketch3.addGeometry(Part.ArcOfCircle(Part.Circle(V(-12.006746, -27.492509, 0), V(0, 0, 1), 3), math.radians(5.576309), math.radians(122.430968)), False)
sketch3.addGeometry(Part.ArcOfCircle(Part.Circle(V(-22.173109, -22.173109, 0), V(0, 0, 1), 9), math.radians(-48.245637), math.radians(-18.041056)), False)
sketch3.addGeometry(Part.ArcOfCircle(Part.Circle(V(-15.646912, -29.483974, 0), V(0, 0, 1), 0.8), math.radians(131.754363), math.radians(248.757621)), False)
sketch3.addGeometry(Part.LineSegment(V(-32.644562, -10.106575, 0), V(-31.592764, -12.496106, 0)), False)
sketch3.addGeometry(Part.ArcOfCircle(Part.Circle(V(-29.304619, -11.488935, 0), V(0, 0, 1), 2.5), math.radians(-156.24238), math.radians(-63.987259)), False)
sketch3.addGeometry(Part.ArcOfCircle(Part.Circle(V(-23.461777, -23.461778, 0), V(0, 0, 1), 10.822453), math.radians(101.464077), math.radians(116.012741)), False)
sketch3.addGeometry(Part.ArcOfCircle(Part.Circle(V(-27.930191, -10.950088, 0), V(0, 0, 1), 3), math.radians(-39.423691), math.radians(77.430968)), False)
sketch3.addGeometry(Part.ArcOfCircle(Part.Circle(V(-31.357511, 0, 0), V(0, 0, 1), 9), math.radians(-93.245637), math.radians(-63.041056)), False)
sketch3.addGeometry(Part.ArcOfCircle(Part.Circle(V(-31.912355, -9.784281, 0), V(0, 0, 1), 0.8), math.radians(86.754363), math.radians(203.757621)), False)
sketch3.addGeometry(Part.LineSegment(V(-30.229619, 15.936763, 0), V(-31.175539, 13.503376, 0)), False)
sketch3.addGeometry(Part.ArcOfCircle(Part.Circle(V(-28.845399, 12.597591, 0), V(0, 0, 1), 2.5), math.radians(158.757621), math.radians(251.012741)), False)
sketch3.addGeometry(Part.ArcOfCircle(Part.Circle(V(-33.179964, 0, 0), V(0, 0, 1), 10.822453), math.radians(56.464077), math.radians(71.012741)), False)
sketch3.addGeometry(Part.ArcOfCircle(Part.Circle(V(-27.492509, 12.006746, 0), V(0, 0, 1), 3), math.radians(-84.423691), math.radians(32.430968)), False)
sketch3.addGeometry(Part.ArcOfCircle(Part.Circle(V(-22.173109, 22.173109, 0), V(0, 0, 1), 9), math.radians(-138.245637), math.radians(-108.041056)), False)
sketch3.addGeometry(Part.ArcOfCircle(Part.Circle(V(-29.483974, 15.646912, 0), V(0, 0, 1), 0.8), math.radians(41.754363), math.radians(158.757621)), False)
sketch3.addGeometry(Part.LineSegment(V(-10.106575, 32.644562, 0), V(-12.496106, 31.592764, 0)), False)
sketch3.addGeometry(Part.ArcOfCircle(Part.Circle(V(-11.488935, 29.304619, 0), V(0, 0, 1), 2.5), math.radians(113.75762), math.radians(206.012741)), False)
sketch3.addGeometry(Part.ArcOfCircle(Part.Circle(V(-23.461778, 23.461777, 0), V(0, 0, 1), 10.822453), math.radians(11.464077), math.radians(26.012741)), False)
sketch3.addGeometry(Part.ArcOfCircle(Part.Circle(V(-10.950088, 27.930191, 0), V(0, 0, 1), 3), math.radians(-129.423691), math.radians(-12.569032)), False)
sketch3.addGeometry(Part.ArcOfCircle(Part.Circle(V(0, 31.357511, 0), V(0, 0, 1), 9), math.radians(176.754363), math.radians(206.958944)), False)
sketch3.addGeometry(Part.ArcOfCircle(Part.Circle(V(-9.784281, 31.912355, 0), V(0, 0, 1), 0.8), math.radians(-3.245637), math.radians(113.757621)), False)
sketch3.addConstraint(Sketcher.Constraint("Coincident", 0, 2, 1, 1))
sketch3.addConstraint(Sketcher.Constraint("Coincident", 1, 2, 2, 2))
sketch3.addConstraint(Sketcher.Constraint("Coincident", 2, 1, 3, 1))
sketch3.addConstraint(Sketcher.Constraint("Coincident", 3, 2, 4, 2))
sketch3.addConstraint(Sketcher.Constraint("Coincident", 4, 1, 5, 1))
sketch3.addConstraint(Sketcher.Constraint("Coincident", 5, 2, 0, 1))
sketch3.addConstraint(Sketcher.Constraint("Coincident", 6, 2, 7, 1))
sketch3.addConstraint(Sketcher.Constraint("Coincident", 7, 2, 8, 2))
sketch3.addConstraint(Sketcher.Constraint("Coincident", 8, 1, 9, 1))
sketch3.addConstraint(Sketcher.Constraint("Coincident", 9, 2, 10, 2))
sketch3.addConstraint(Sketcher.Constraint("Coincident", 10, 1, 11, 1))
sketch3.addConstraint(Sketcher.Constraint("Coincident", 11, 2, 6, 1))
sketch3.addConstraint(Sketcher.Constraint("Coincident", 12, 2, 13, 1))
sketch3.addConstraint(Sketcher.Constraint("Coincident", 13, 2, 14, 2))
sketch3.addConstraint(Sketcher.Constraint("Coincident", 14, 1, 15, 1))
sketch3.addConstraint(Sketcher.Constraint("Coincident", 15, 2, 16, 2))
sketch3.addConstraint(Sketcher.Constraint("Coincident", 16, 1, 17, 1))
sketch3.addConstraint(Sketcher.Constraint("Coincident", 17, 2, 12, 1))
sketch3.addConstraint(Sketcher.Constraint("Coincident", 18, 2, 19, 1))
sketch3.addConstraint(Sketcher.Constraint("Coincident", 19, 2, 20, 2))
sketch3.addConstraint(Sketcher.Constraint("Coincident", 20, 1, 21, 1))
sketch3.addConstraint(Sketcher.Constraint("Coincident", 21, 2, 22, 2))
sketch3.addConstraint(Sketcher.Constraint("Coincident", 22, 1, 23, 1))
sketch3.addConstraint(Sketcher.Constraint("Coincident", 23, 2, 18, 1))
sketch3.addConstraint(Sketcher.Constraint("Coincident", 24, 2, 25, 1))
sketch3.addConstraint(Sketcher.Constraint("Coincident", 25, 2, 26, 2))
sketch3.addConstraint(Sketcher.Constraint("Coincident", 26, 1, 27, 1))
sketch3.addConstraint(Sketcher.Constraint("Coincident", 27, 2, 28, 2))
sketch3.addConstraint(Sketcher.Constraint("Coincident", 28, 1, 29, 1))
sketch3.addConstraint(Sketcher.Constraint("Coincident", 29, 2, 24, 1))
sketch3.addConstraint(Sketcher.Constraint("Coincident", 30, 2, 31, 1))
sketch3.addConstraint(Sketcher.Constraint("Coincident", 31, 2, 32, 2))
sketch3.addConstraint(Sketcher.Constraint("Coincident", 32, 1, 33, 1))
sketch3.addConstraint(Sketcher.Constraint("Coincident", 33, 2, 34, 2))
sketch3.addConstraint(Sketcher.Constraint("Coincident", 34, 1, 35, 1))
sketch3.addConstraint(Sketcher.Constraint("Coincident", 35, 2, 30, 1))
sketch3.addConstraint(Sketcher.Constraint("Coincident", 36, 2, 37, 1))
sketch3.addConstraint(Sketcher.Constraint("Coincident", 37, 2, 38, 2))
sketch3.addConstraint(Sketcher.Constraint("Coincident", 38, 1, 39, 1))
sketch3.addConstraint(Sketcher.Constraint("Coincident", 39, 2, 40, 2))
sketch3.addConstraint(Sketcher.Constraint("Coincident", 40, 1, 41, 1))
sketch3.addConstraint(Sketcher.Constraint("Coincident", 41, 2, 36, 1))
sketch3.addConstraint(Sketcher.Constraint("Coincident", 42, 2, 43, 1))
sketch3.addConstraint(Sketcher.Constraint("Coincident", 43, 2, 44, 2))
sketch3.addConstraint(Sketcher.Constraint("Coincident", 44, 1, 45, 1))
sketch3.addConstraint(Sketcher.Constraint("Coincident", 45, 2, 46, 2))
sketch3.addConstraint(Sketcher.Constraint("Coincident", 46, 1, 47, 1))
sketch3.addConstraint(Sketcher.Constraint("Coincident", 47, 2, 42, 1))
sketch3.addConstraint(Sketcher.Constraint("PointOnObject", 2, 3, -2))
sketch3.addConstraint(Sketcher.Constraint("PointOnObject", 10, 3, -1))
sketch3.addConstraint(Sketcher.Constraint("PointOnObject", 14, 3, -1))
sketch3.addConstraint(Sketcher.Constraint("PointOnObject", 22, 3, -2))
sketch3.addConstraint(Sketcher.Constraint("PointOnObject", 26, 3, -2))
sketch3.addConstraint(Sketcher.Constraint("PointOnObject", 34, 3, -1))
sketch3.addConstraint(Sketcher.Constraint("PointOnObject", 38, 3, -1))
sketch3.addConstraint(Sketcher.Constraint("PointOnObject", 46, 3, -2))
sketch3.addConstraint(Sketcher.Constraint("Radius", 3, 3.0))
sketch3.addConstraint(Sketcher.Constraint("Radius", 4, 9.0))
sketch3.addConstraint(Sketcher.Constraint("Radius", 9, 3.0))
sketch3.addConstraint(Sketcher.Constraint("Radius", 10, 9.0))
sketch3.addConstraint(Sketcher.Constraint("Radius", 15, 3.0))
sketch3.addConstraint(Sketcher.Constraint("Radius", 16, 9.0))
sketch3.addConstraint(Sketcher.Constraint("Radius", 21, 3.0))
sketch3.addConstraint(Sketcher.Constraint("Radius", 22, 9.0))
sketch3.addConstraint(Sketcher.Constraint("Radius", 27, 3.0))
sketch3.addConstraint(Sketcher.Constraint("Radius", 28, 9.0))
sketch3.addConstraint(Sketcher.Constraint("Radius", 33, 3.0))
sketch3.addConstraint(Sketcher.Constraint("Radius", 34, 9.0))
sketch3.addConstraint(Sketcher.Constraint("Radius", 39, 3.0))
sketch3.addConstraint(Sketcher.Constraint("Radius", 40, 9.0))
sketch3.addConstraint(Sketcher.Constraint("Radius", 45, 3.0))
sketch3.addConstraint(Sketcher.Constraint("Radius", 46, 9.0))
sketch3.addConstraint(Sketcher.Constraint("Radius", 1, 2.5))
sketch3.addConstraint(Sketcher.Constraint("Radius", 5, 0.8))
sketch3.addConstraint(Sketcher.Constraint("Radius", 7, 2.5))
sketch3.addConstraint(Sketcher.Constraint("Radius", 11, 0.8))
sketch3.addConstraint(Sketcher.Constraint("Radius", 13, 2.5))
sketch3.addConstraint(Sketcher.Constraint("Radius", 17, 0.8))
sketch3.addConstraint(Sketcher.Constraint("Radius", 19, 2.5))
sketch3.addConstraint(Sketcher.Constraint("Radius", 23, 0.8))
sketch3.addConstraint(Sketcher.Constraint("Radius", 25, 2.5))
sketch3.addConstraint(Sketcher.Constraint("Radius", 29, 0.8))
sketch3.addConstraint(Sketcher.Constraint("Radius", 31, 2.5))
sketch3.addConstraint(Sketcher.Constraint("Radius", 35, 0.8))
sketch3.addConstraint(Sketcher.Constraint("Radius", 37, 2.5))
sketch3.addConstraint(Sketcher.Constraint("Radius", 41, 0.8))
sketch3.addConstraint(Sketcher.Constraint("Radius", 43, 2.5))
sketch3.addConstraint(Sketcher.Constraint("Radius", 47, 0.8))
sketch3.addConstraint(Sketcher.Constraint("Radius", 2, 10.822453))
sketch3.addConstraint(Sketcher.Constraint("Radius", 8, 10.822453))
sketch3.addConstraint(Sketcher.Constraint("Radius", 14, 10.822453))
sketch3.addConstraint(Sketcher.Constraint("Radius", 20, 10.822453))
sketch3.addConstraint(Sketcher.Constraint("Radius", 26, 10.822453))
sketch3.addConstraint(Sketcher.Constraint("Radius", 32, 10.822453))
sketch3.addConstraint(Sketcher.Constraint("Radius", 38, 10.822453))
sketch3.addConstraint(Sketcher.Constraint("Radius", 44, 10.822453))
sketch3.addConstraint(Sketcher.Constraint("DistanceY", -1, 1, 1, 3, 28.845399))
sketch3.addConstraint(Sketcher.Constraint("DistanceX", -1, 1, 13, 3, 28.845399))
sketch3.addConstraint(Sketcher.Constraint("DistanceY", 25, 3, -1, 1, 28.845399))
sketch3.addConstraint(Sketcher.Constraint("DistanceX", 37, 3, -1, 1, 28.845399))
sketch3.addConstraint(Sketcher.Constraint("DistanceX", -1, 1, 1, 3, 12.597591))
sketch3.addConstraint(Sketcher.Constraint("DistanceY", -1, 1, 3, 3, 27.492509))
sketch3.addConstraint(Sketcher.Constraint("DistanceX", -1, 1, 4, 3, 22.173109))
sketch3.addConstraint(Sketcher.Constraint("DistanceY", -1, 1, 4, 3, 22.173109))
sketch3.addConstraint(Sketcher.Constraint("DistanceX", -1, 1, 5, 3, 15.646912))
sketch3.addConstraint(Sketcher.Constraint("DistanceX", -1, 1, 7, 3, 29.304619))
sketch3.addConstraint(Sketcher.Constraint("DistanceX", -1, 1, 9, 3, 27.930191))
sketch3.addConstraint(Sketcher.Constraint("DistanceY", -1, 1, 9, 3, 10.950088))
sketch3.addConstraint(Sketcher.Constraint("DistanceX", -1, 1, 10, 3, 31.357511))
sketch3.addConstraint(Sketcher.Constraint("DistanceY", -1, 1, 11, 3, 9.784281))
sketch3.addConstraint(Sketcher.Constraint("DistanceY", 13, 3, -1, 1, 12.597591))
sketch3.addConstraint(Sketcher.Constraint("DistanceX", -1, 1, 15, 3, 27.492509))
sketch3.addConstraint(Sketcher.Constraint("DistanceX", -1, 1, 16, 3, 22.173109))
sketch3.addConstraint(Sketcher.Constraint("DistanceY", 16, 3, -1, 1, 22.173109))
sketch3.addConstraint(Sketcher.Constraint("DistanceY", 17, 3, -1, 1, 15.646912))
sketch3.addConstraint(Sketcher.Constraint("DistanceY", 19, 3, -1, 1, 29.304619))
sketch3.addConstraint(Sketcher.Constraint("DistanceX", -1, 1, 21, 3, 10.950088))
sketch3.addConstraint(Sketcher.Constraint("DistanceY", 21, 3, -1, 1, 27.930191))
sketch3.addConstraint(Sketcher.Constraint("DistanceY", 22, 3, -1, 1, 31.357511))
sketch3.addConstraint(Sketcher.Constraint("DistanceX", -1, 1, 23, 3, 9.784281))
sketch3.addConstraint(Sketcher.Constraint("DistanceX", 25, 3, -1, 1, 12.597591))
sketch3.addConstraint(Sketcher.Constraint("DistanceY", 27, 3, -1, 1, 27.492509))
sketch3.addConstraint(Sketcher.Constraint("DistanceX", 28, 3, -1, 1, 22.173109))
sketch3.addConstraint(Sketcher.Constraint("DistanceY", 28, 3, -1, 1, 22.173109))
sketch3.addConstraint(Sketcher.Constraint("DistanceX", 29, 3, -1, 1, 15.646912))
sketch3.addConstraint(Sketcher.Constraint("DistanceX", 31, 3, -1, 1, 29.304619))
sketch3.addConstraint(Sketcher.Constraint("DistanceX", 33, 3, -1, 1, 27.930191))
sketch3.addConstraint(Sketcher.Constraint("DistanceY", 33, 3, -1, 1, 10.950088))
sketch3.addConstraint(Sketcher.Constraint("DistanceX", 34, 3, -1, 1, 31.357511))
sketch3.addConstraint(Sketcher.Constraint("DistanceY", 35, 3, -1, 1, 9.784281))
sketch3.addConstraint(Sketcher.Constraint("DistanceY", -1, 1, 37, 3, 12.597591))
sketch3.addConstraint(Sketcher.Constraint("DistanceX", 39, 3, -1, 1, 27.492509))
sketch3.addConstraint(Sketcher.Constraint("DistanceX", 40, 3, -1, 1, 22.173109))
sketch3.addConstraint(Sketcher.Constraint("DistanceY", -1, 1, 40, 3, 22.173109))
sketch3.addConstraint(Sketcher.Constraint("DistanceY", -1, 1, 41, 3, 15.646912))
sketch3.addConstraint(Sketcher.Constraint("DistanceY", -1, 1, 43, 3, 29.304619))
sketch3.addConstraint(Sketcher.Constraint("DistanceX", 45, 3, -1, 1, 10.950088))
sketch3.addConstraint(Sketcher.Constraint("DistanceY", -1, 1, 45, 3, 27.930191))
sketch3.addConstraint(Sketcher.Constraint("DistanceY", -1, 1, 46, 3, 31.357511))
sketch3.addConstraint(Sketcher.Constraint("DistanceX", 47, 3, -1, 1, 9.784281))
sketch3.addConstraint(Sketcher.Constraint("DistanceY", -1, 1, 0, 2, 31.175539))
sketch3.addConstraint(Sketcher.Constraint("DistanceY", -1, 1, 4, 1, 28.887169))
sketch3.addConstraint(Sketcher.Constraint("DistanceY", -1, 1, 5, 2, 30.229619))
sketch3.addConstraint(Sketcher.Constraint("DistanceX", -1, 1, 7, 2, 28.208191))
sketch3.addConstraint(Sketcher.Constraint("DistanceX", -1, 1, 11, 2, 32.644562))
sketch3.addConstraint(Sketcher.Constraint("DistanceX", -1, 1, 12, 2, 31.175539))
sketch3.addConstraint(Sketcher.Constraint("DistanceX", -1, 1, 16, 1, 28.887169))
sketch3.addConstraint(Sketcher.Constraint("DistanceX", -1, 1, 17, 2, 30.229619))
sketch3.addConstraint(Sketcher.Constraint("DistanceY", 19, 2, -1, 1, 28.208191))
sketch3.addConstraint(Sketcher.Constraint("DistanceY", 23, 2, -1, 1, 32.644562))
sketch3.addConstraint(Sketcher.Constraint("DistanceY", 24, 2, -1, 1, 31.175539))
sketch3.addConstraint(Sketcher.Constraint("DistanceY", 28, 1, -1, 1, 28.887169))
sketch3.addConstraint(Sketcher.Constraint("DistanceY", 29, 2, -1, 1, 30.229619))
sketch3.addConstraint(Sketcher.Constraint("DistanceX", 31, 2, -1, 1, 28.208191))
sketch3.addConstraint(Sketcher.Constraint("DistanceX", 35, 2, -1, 1, 32.644562))
sketch3.addConstraint(Sketcher.Constraint("DistanceX", 36, 2, -1, 1, 31.175539))
sketch3.addConstraint(Sketcher.Constraint("DistanceX", 40, 1, -1, 1, 28.887169))
sketch3.addConstraint(Sketcher.Constraint("DistanceX", 41, 2, -1, 1, 30.229619))
sketch3.addConstraint(Sketcher.Constraint("DistanceY", -1, 1, 43, 2, 28.208191))
sketch3.addConstraint(Sketcher.Constraint("DistanceY", -1, 1, 47, 2, 32.644562))
sketch3.addConstraint(Sketcher.Constraint("Distance", 6, 2.610773))
sketch3.addConstraint(Sketcher.Constraint("Distance", 18, 2.610773))
sketch3.addConstraint(Sketcher.Constraint("Distance", 30, 2.610773))
sketch3.addConstraint(Sketcher.Constraint("Distance", 42, 2.610773))
sketch3.addConstraint(Sketcher.Constraint("DistanceX", -1, 1, 3, 3, 12.006746))
sketch3.addConstraint(Sketcher.Constraint("DistanceY", -1, 1, 7, 3, 11.488935))
sketch3.addConstraint(Sketcher.Constraint("DistanceX", -1, 1, 8, 3, 23.461777))
sketch3.addConstraint(Sketcher.Constraint("DistanceY", 15, 3, -1, 1, 12.006746))
sketch3.addConstraint(Sketcher.Constraint("DistanceX", -1, 1, 19, 3, 11.488935))
sketch3.addConstraint(Sketcher.Constraint("DistanceX", -1, 1, 20, 3, 23.461778))
sketch3.addConstraint(Sketcher.Constraint("DistanceX", 27, 3, -1, 1, 12.006746))
sketch3.addConstraint(Sketcher.Constraint("DistanceY", 31, 3, -1, 1, 11.488935))
sketch3.addConstraint(Sketcher.Constraint("DistanceX", 32, 3, -1, 1, 23.461777))
sketch3.addConstraint(Sketcher.Constraint("DistanceY", -1, 1, 39, 3, 12.006746))
sketch3.addConstraint(Sketcher.Constraint("DistanceX", 43, 3, -1, 1, 11.488935))
sketch3.addConstraint(Sketcher.Constraint("DistanceX", 44, 3, -1, 1, 23.461778))
sketch3.addConstraint(Sketcher.Constraint("DistanceX", -1, 1, 1, 2, 10.233613))
sketch3.addConstraint(Sketcher.Constraint("DistanceX", -1, 1, 10, 1, 31.867062))
sketch3.addConstraint(Sketcher.Constraint("DistanceX", -1, 1, 13, 2, 29.658793))
sketch3.addConstraint(Sketcher.Constraint("DistanceX", -1, 1, 22, 1, 8.985564))
sketch3.addConstraint(Sketcher.Constraint("DistanceX", 25, 2, -1, 1, 10.233613))
sketch3.addConstraint(Sketcher.Constraint("DistanceX", 34, 1, -1, 1, 31.867062))
sketch3.addConstraint(Sketcher.Constraint("DistanceX", 37, 2, -1, 1, 29.658793))
sketch3.addConstraint(Sketcher.Constraint("DistanceX", 46, 1, -1, 1, 8.985564))
pocket2 = doc.addObject("PartDesign::Pocket", "Pocket001")
body.addObject(pocket2)
pocket2.Profile = sketch3
pocket2.Length = 3
pocket2.Reversed = True
doc.recompute()

fillet = doc.addObject("PartDesign::Fillet", "Fillet")
body.addObject(fillet)
fillet.Base = (pocket2, edges_at(pocket2, [
    (27.277, 8.022, 3.5),
    (25.613, 12.855, 3.5),
    (24.96, -13.616, 3.5),
    (27.201, -9.021, 3.5),
    (8.022, -27.277, 3.5),
    (12.855, -25.613, 3.5),
    (-13.616, -24.96, 3.5),
    (-9.021, -27.201, 3.5),
    (-27.277, -8.022, 3.5),
    (-25.613, -12.855, 3.5),
    (-24.96, 13.616, 3.5),
    (-27.201, 9.021, 3.5),
    (-8.022, 27.277, 3.5),
    (-12.855, 25.613, 3.5),
    (13.616, 24.96, 3.5),
    (9.021, 27.201, 3.5),
]))
fillet.Radius = 0.5

# Sketch on XY plane
sketch4 = doc.addObject("Sketcher::SketchObject", "Sketch003")
body.addObject(sketch4)
sketch4.AttachmentSupport = (doc.XY_Plane, [""])
sketch4.MapMode = "FlatFace"
sketch4.AttachmentOffset = App.Placement(V(0, 0, 5), App.Rotation())
sketch4.addGeometry(Part.Circle(V(0, 0, 0), V(0, 0, 1), 1.2), False)
sketch4.addGeometry(Part.Circle(V(-17.7, -9.4, 0), V(0, 0, 1), 1.2), False)
sketch4.addGeometry(Part.Circle(V(-9.4, 17.7, 0), V(0, 0, 1), 1.2), False)
sketch4.addGeometry(Part.Circle(V(17.7, 9.4, 0), V(0, 0, 1), 1.2), False)
sketch4.addGeometry(Part.Circle(V(9.4, -17.7, 0), V(0, 0, 1), 1.2), False)
sketch4.addConstraint(Sketcher.Constraint("Coincident", 0, 3, -1, 1))
sketch4.addConstraint(Sketcher.Constraint("Equal", 0, 1))
sketch4.addConstraint(Sketcher.Constraint("Equal", 1, 2))
sketch4.addConstraint(Sketcher.Constraint("Equal", 2, 3))
sketch4.addConstraint(Sketcher.Constraint("Equal", 3, 4))
sketch4.addConstraint(Sketcher.Constraint("Symmetric", 1, 3, 3, 3, -1, 1))
sketch4.addConstraint(Sketcher.Constraint("Symmetric", 2, 3, 4, 3, -1, 1))
sketch4.addConstraint(Sketcher.Constraint("Diameter", 0, 2.5))
sketch4.addConstraint(Sketcher.Constraint("DistanceX", 1, 3, -1, 1, 17.658952))
sketch4.addConstraint(Sketcher.Constraint("DistanceY", 1, 3, -1, 1, 9.389431))
sketch4.addConstraint(Sketcher.Constraint("DistanceX", 2, 3, -1, 1, 9.389431))
sketch4.addConstraint(Sketcher.Constraint("DistanceY", -1, 1, 2, 3, 17.658952))
doc.recompute()
hole = doc.addObject("PartDesign::Hole", "Hole")
body.addObject(hole)
hole.Profile = sketch4
hole.ThreadType = "None"
hole.Diameter = 2.5
hole.DepthType = "ThroughAll"

doc.recompute()
